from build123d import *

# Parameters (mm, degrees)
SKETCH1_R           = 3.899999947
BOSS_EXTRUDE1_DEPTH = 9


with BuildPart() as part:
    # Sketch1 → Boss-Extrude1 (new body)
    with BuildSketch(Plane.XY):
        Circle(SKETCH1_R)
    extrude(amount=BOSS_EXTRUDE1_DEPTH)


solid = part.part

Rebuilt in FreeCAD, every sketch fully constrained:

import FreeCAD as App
import Part
import Sketcher

doc = App.newDocument("Part")
body = doc.addObject("PartDesign::Body", "Body")

# Sketch on XY plane
sketch1 = body.newObject("Sketcher::SketchObject", "Sketch")
sketch1.AttachmentSupport = (doc.getObject("XY_Plane"), [""])
sketch1.MapMode = "FlatFace"
sketch1.addGeometry(Part.Circle(App.Vector(0, 0, 0), App.Vector(0, 0, 1), 3.9), False)
sketch1.addConstraint([
    Sketcher.Constraint("Coincident", 0, 3, -1, 1),
    Sketcher.Constraint("Diameter", 0, 7.8),
])
pad1 = body.newObject("PartDesign::Pad", "Pad")
pad1.Profile = sketch1
pad1.Length = 9

doc.recompute()
